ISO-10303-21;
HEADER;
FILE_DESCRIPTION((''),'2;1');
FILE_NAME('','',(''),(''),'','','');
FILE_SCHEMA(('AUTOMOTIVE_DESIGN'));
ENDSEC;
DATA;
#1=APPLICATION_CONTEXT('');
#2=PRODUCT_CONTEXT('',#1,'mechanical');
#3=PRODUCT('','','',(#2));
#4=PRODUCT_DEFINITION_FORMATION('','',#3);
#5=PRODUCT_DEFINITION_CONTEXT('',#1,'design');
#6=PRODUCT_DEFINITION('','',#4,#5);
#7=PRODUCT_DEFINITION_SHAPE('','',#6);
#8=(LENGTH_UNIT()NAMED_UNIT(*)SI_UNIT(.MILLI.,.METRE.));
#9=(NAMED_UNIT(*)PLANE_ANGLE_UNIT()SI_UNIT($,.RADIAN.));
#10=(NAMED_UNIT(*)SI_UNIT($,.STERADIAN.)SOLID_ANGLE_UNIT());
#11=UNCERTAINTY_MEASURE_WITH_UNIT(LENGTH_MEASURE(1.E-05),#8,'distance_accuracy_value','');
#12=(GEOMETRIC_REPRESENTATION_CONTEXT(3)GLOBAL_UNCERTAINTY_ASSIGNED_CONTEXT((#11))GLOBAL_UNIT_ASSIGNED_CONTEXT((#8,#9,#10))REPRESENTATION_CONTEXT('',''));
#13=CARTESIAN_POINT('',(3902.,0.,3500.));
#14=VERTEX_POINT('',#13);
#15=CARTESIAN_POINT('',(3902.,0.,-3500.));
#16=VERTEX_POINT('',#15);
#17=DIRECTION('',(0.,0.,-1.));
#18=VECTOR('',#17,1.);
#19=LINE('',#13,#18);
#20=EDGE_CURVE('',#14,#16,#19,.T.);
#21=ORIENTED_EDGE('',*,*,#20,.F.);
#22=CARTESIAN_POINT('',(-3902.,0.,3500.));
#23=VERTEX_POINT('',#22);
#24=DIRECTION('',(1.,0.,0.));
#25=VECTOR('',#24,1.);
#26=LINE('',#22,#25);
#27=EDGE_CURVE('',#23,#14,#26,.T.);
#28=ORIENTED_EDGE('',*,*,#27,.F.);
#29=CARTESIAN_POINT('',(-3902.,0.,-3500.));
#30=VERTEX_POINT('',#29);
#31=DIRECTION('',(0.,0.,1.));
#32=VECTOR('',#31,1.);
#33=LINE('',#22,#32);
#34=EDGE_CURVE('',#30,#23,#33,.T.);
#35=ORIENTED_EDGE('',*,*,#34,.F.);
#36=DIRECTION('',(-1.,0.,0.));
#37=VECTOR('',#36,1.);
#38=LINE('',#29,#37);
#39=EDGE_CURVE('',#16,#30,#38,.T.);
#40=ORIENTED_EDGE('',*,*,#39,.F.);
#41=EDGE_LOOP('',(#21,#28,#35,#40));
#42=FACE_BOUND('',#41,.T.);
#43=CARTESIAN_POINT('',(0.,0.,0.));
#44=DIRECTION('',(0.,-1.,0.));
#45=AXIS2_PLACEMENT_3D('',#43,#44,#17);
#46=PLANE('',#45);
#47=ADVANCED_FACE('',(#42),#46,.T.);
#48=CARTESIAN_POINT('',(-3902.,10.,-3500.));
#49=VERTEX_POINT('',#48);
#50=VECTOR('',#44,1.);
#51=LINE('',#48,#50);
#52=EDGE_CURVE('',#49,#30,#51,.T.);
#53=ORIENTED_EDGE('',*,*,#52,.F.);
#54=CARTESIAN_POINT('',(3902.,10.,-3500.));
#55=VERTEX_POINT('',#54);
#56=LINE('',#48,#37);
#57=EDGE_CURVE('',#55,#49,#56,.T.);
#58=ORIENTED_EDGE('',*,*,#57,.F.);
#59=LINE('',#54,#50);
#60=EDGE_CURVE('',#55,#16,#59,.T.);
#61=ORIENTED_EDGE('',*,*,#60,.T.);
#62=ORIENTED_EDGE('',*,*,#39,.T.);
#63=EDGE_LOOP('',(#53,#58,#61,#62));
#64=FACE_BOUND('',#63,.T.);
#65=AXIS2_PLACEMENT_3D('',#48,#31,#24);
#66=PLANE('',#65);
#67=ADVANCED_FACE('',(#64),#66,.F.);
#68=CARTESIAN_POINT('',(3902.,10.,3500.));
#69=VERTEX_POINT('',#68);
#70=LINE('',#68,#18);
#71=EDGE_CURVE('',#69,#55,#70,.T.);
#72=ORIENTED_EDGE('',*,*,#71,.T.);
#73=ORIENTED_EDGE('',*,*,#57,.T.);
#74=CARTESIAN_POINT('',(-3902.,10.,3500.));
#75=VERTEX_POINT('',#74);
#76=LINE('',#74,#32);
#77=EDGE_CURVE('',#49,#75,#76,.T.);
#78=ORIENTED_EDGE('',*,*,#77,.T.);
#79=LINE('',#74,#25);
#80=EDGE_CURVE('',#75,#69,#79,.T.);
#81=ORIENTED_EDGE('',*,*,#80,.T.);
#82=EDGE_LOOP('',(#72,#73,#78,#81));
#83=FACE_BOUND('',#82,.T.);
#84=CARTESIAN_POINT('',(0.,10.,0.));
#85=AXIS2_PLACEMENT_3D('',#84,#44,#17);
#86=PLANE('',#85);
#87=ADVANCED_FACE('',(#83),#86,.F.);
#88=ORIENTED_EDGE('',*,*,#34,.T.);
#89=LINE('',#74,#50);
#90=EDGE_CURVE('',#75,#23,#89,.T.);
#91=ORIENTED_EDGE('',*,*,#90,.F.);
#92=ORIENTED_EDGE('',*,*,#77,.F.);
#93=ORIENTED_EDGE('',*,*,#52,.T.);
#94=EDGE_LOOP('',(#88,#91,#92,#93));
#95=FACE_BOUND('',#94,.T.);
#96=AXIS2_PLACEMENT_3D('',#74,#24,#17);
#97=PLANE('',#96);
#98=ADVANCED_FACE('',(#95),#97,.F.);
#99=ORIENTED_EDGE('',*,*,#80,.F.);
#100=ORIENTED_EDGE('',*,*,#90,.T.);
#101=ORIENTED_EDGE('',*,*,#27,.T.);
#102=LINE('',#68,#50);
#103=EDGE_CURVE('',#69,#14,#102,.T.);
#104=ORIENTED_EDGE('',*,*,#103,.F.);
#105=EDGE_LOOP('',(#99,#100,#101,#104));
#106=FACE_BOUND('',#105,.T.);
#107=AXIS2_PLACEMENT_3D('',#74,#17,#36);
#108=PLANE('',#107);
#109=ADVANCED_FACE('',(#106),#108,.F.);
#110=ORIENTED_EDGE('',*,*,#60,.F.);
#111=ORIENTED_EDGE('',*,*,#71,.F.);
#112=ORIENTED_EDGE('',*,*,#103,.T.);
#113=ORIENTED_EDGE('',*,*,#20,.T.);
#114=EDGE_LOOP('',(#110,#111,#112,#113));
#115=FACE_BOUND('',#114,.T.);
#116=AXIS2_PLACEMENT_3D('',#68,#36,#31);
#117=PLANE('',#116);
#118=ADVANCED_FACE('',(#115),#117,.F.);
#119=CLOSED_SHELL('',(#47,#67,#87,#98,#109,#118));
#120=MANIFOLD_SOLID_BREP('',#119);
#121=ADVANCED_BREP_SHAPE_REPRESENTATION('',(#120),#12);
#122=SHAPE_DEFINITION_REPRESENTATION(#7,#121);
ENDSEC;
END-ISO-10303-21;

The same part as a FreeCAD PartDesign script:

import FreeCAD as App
import Part
import Sketcher

V = App.Vector
Q = App.Units.Quantity


def add_polygon(sketch, points):
    """Adds a closed chain of lines whose ends are joined by coincident constraints."""
    first, n = sketch.GeometryCount, len(points)
    for a, b in zip(points, points[1:] + points[:1]):
        sketch.addGeometry(Part.LineSegment(App.Vector(*a, 0), App.Vector(*b, 0)), False)
    for i in range(n):
        sketch.addConstraint(Sketcher.Constraint("Coincident", first + i, 2, first + (i + 1) % n, 1))

doc = App.newDocument("Part")
body = doc.addObject("PartDesign::Body", "Body")

# Sketch on XZ plane
sketch1 = body.newObject("Sketcher::SketchObject", "Sketch")
sketch1.AttachmentSupport = (doc.getObject("XZ_Plane"), [""])
sketch1.MapMode = "FlatFace"
add_polygon(sketch1, [(-3902, -3500), (-3902, 3500), (3902, 3500), (3902, -3500)])  # lines 0-3
sketch1.addConstraint([
    Sketcher.Constraint("Vertical", 0),
    Sketcher.Constraint("Horizontal", 1),
    Sketcher.Constraint("Vertical", 2),
    Sketcher.Constraint("Horizontal", 3),
    Sketcher.Constraint("Symmetric", 0, 2, 2, 2, -1, 1),
    Sketcher.Constraint("DistanceX", 1, 1, 1, 2, Q("7804 mm")),
    Sketcher.Constraint("DistanceY", 0, 1, 0, 2, Q("7000 mm")),
])
pad1 = body.newObject("PartDesign::Pad", "Pad")
pad1.Profile = sketch1
pad1.Length = 10
pad1.Reversed = True

doc.recompute()
